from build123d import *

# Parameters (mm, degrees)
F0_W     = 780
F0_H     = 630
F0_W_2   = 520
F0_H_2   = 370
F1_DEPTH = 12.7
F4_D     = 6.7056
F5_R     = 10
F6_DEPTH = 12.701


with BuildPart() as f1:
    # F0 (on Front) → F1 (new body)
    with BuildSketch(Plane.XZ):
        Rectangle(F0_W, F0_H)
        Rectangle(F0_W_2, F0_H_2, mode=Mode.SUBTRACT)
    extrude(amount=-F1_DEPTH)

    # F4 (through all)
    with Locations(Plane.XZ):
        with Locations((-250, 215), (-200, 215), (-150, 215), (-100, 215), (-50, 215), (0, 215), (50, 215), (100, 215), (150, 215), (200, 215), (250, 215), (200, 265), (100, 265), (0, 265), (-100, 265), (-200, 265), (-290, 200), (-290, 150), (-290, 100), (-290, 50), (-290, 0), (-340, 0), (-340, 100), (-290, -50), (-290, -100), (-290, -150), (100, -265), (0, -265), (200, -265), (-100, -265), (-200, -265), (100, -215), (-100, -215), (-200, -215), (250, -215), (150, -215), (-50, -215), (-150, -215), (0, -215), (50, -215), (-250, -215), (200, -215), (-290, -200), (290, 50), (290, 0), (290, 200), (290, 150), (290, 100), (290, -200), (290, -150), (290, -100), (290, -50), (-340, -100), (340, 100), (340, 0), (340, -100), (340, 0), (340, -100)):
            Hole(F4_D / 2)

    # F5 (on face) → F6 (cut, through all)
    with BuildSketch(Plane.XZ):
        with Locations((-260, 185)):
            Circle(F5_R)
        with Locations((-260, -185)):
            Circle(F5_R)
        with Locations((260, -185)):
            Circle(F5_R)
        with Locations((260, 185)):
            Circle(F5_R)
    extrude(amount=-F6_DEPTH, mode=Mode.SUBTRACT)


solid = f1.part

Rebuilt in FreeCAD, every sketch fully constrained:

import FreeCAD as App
import Part
import Sketcher
from FreeCAD import Vector
Q = App.Units.Quantity


def add_polygon(sketch, points):
    """Adds a closed chain of lines whose ends are joined by coincident constraints."""
    first, n = sketch.GeometryCount, len(points)
    for a, b in zip(points, points[1:] + points[:1]):
        sketch.addGeometry(Part.LineSegment(App.Vector(*a, 0), App.Vector(*b, 0)), False)
    for i in range(n):
        sketch.addConstraint(Sketcher.Constraint("Coincident", first + i, 2, first + (i + 1) % n, 1))

doc = App.newDocument("Part")
params = doc.addObject("Spreadsheet::Sheet", "Params")
for row, (alias, value) in enumerate([
    ("sketch1_width", "780 mm"),
    ("sketch1_width2", "520 mm"),
    ("sketch1_height", "630 mm"),
    ("sketch1_height2", "370 mm"),
    ("pad1_length", "12.7 mm"),
    ("hole_diameter", "6.7056 mm"),
    ("sketch3_diameter", "20 mm"),
], start=1):
    params.set(f"A{row}", alias)
    params.set(f"B{row}", "=" + value)
    params.setAlias(f"B{row}", alias)

body = doc.addObject("PartDesign::Body", "Body")

# Sketch on XZ plane
sketch1 = body.newObject("Sketcher::SketchObject", "Sketch")
sketch1.AttachmentSupport = (doc.getObject("XZ_Plane"), [""])
sketch1.MapMode = "FlatFace"
add_polygon(sketch1, [(-390, 315), (-390, -315), (390, -315), (390, 315)])  # lines 0-3
add_polygon(sketch1, [(260, -185), (-260, -185), (-260, 185), (260, 185)])  # lines 4-7
sketch1.addConstraint(Sketcher.Constraint("Vertical", 0))
sketch1.addConstraint(Sketcher.Constraint("Horizontal", 1))
sketch1.addConstraint(Sketcher.Constraint("Vertical", 2))
sketch1.addConstraint(Sketcher.Constraint("Horizontal", 3))
sketch1.addConstraint(Sketcher.Constraint("Horizontal", 4))
sketch1.addConstraint(Sketcher.Constraint("Vertical", 5))
sketch1.addConstraint(Sketcher.Constraint("Horizontal", 6))
sketch1.addConstraint(Sketcher.Constraint("Vertical", 7))
sketch1.addConstraint(Sketcher.Constraint("Symmetric", 0, 2, 2, 2, -1, 1))
sketch1.addConstraint(Sketcher.Constraint("Symmetric", 4, 2, 6, 2, -1, 1))
sketch1.addConstraint(Sketcher.Constraint("DistanceX", 1, 1, 1, 2, Q("780 mm")))
sketch1.addConstraint(Sketcher.Constraint("DistanceX", 4, 2, 4, 1, Q("520 mm")))
sketch1.addConstraint(Sketcher.Constraint("DistanceY", 0, 2, 0, 1, Q("630 mm")))
sketch1.addConstraint(Sketcher.Constraint("DistanceY", 5, 1, 5, 2, Q("370 mm")))
sketch1.setExpression("Constraints[18]", "Params.sketch1_width")
sketch1.setExpression("Constraints[19]", "Params.sketch1_width2")
sketch1.setExpression("Constraints[20]", "Params.sketch1_height")
sketch1.setExpression("Constraints[21]", "Params.sketch1_height2")
pad1 = body.newObject("PartDesign::Pad", "Pad")
pad1.Profile = sketch1
pad1.setExpression("Length", "Params.pad1_length")
pad1.Reversed = True

# Sketch on XZ plane
sketch2 = body.newObject("Sketcher::SketchObject", "Sketch001")
sketch2.AttachmentSupport = (doc.getObject("XZ_Plane"), [""])
sketch2.MapMode = "FlatFace"
sketch2.addGeometry(Part.Circle(Vector(-250, 215, 0), Vector(0, 0, 1), 3.4), False)
sketch2.addGeometry(Part.Circle(Vector(-200, 215, 0), Vector(0, 0, 1), 3.4), False)
sketch2.addGeometry(Part.Circle(Vector(-150, 215, 0), Vector(0, 0, 1), 3.4), False)
sketch2.addGeometry(Part.Circle(Vector(-100, 215, 0), Vector(0, 0, 1), 3.4), False)
sketch2.addGeometry(Part.Circle(Vector(-50, 215, 0), Vector(0, 0, 1), 3.4), False)
sketch2.addGeometry(Part.Circle(Vector(0, 215, 0), Vector(0, 0, 1), 3.4), False)
sketch2.addGeometry(Part.Circle(Vector(50, 215, 0), Vector(0, 0, 1), 3.4), False)
sketch2.addGeometry(Part.Circle(Vector(100, 215, 0), Vector(0, 0, 1), 3.4), False)
sketch2.addGeometry(Part.Circle(Vector(150, 215, 0), Vector(0, 0, 1), 3.4), False)
sketch2.addGeometry(Part.Circle(Vector(200, 215, 0), Vector(0, 0, 1), 3.4), False)
sketch2.addGeometry(Part.Circle(Vector(250, 215, 0), Vector(0, 0, 1), 3.4), False)
sketch2.addGeometry(Part.Circle(Vector(200, 265, 0), Vector(0, 0, 1), 3.4), False)
sketch2.addGeometry(Part.Circle(Vector(100, 265, 0), Vector(0, 0, 1), 3.4), False)
sketch2.addGeometry(Part.Circle(Vector(0, 265, 0), Vector(0, 0, 1), 3.4), False)
sketch2.addGeometry(Part.Circle(Vector(-100, 265, 0), Vector(0, 0, 1), 3.4), False)
sketch2.addGeometry(Part.Circle(Vector(-200, 265, 0), Vector(0, 0, 1), 3.4), False)
sketch2.addGeometry(Part.Circle(Vector(-290, 200, 0), Vector(0, 0, 1), 3.4), False)
sketch2.addGeometry(Part.Circle(Vector(-290, 150, 0), Vector(0, 0, 1), 3.4), False)
sketch2.addGeometry(Part.Circle(Vector(-290, 100, 0), Vector(0, 0, 1), 3.4), False)
sketch2.addGeometry(Part.Circle(Vector(-290, 50, 0), Vector(0, 0, 1), 3.4), False)
sketch2.addGeometry(Part.Circle(Vector(-290, 0, 0), Vector(0, 0, 1), 3.4), False)
sketch2.addGeometry(Part.Circle(Vector(-340, 0, 0), Vector(0, 0, 1), 3.4), False)
sketch2.addGeometry(Part.Circle(Vector(-340, 100, 0), Vector(0, 0, 1), 3.4), False)
sketch2.addGeometry(Part.Circle(Vector(-290, -50, 0), Vector(0, 0, 1), 3.4), False)
sketch2.addGeometry(Part.Circle(Vector(-290, -100, 0), Vector(0, 0, 1), 3.4), False)
sketch2.addGeometry(Part.Circle(Vector(-290, -150, 0), Vector(0, 0, 1), 3.4), False)
sketch2.addGeometry(Part.Circle(Vector(100, -265, 0), Vector(0, 0, 1), 3.4), False)
sketch2.addGeometry(Part.Circle(Vector(0, -265, 0), Vector(0, 0, 1), 3.4), False)
sketch2.addGeometry(Part.Circle(Vector(200, -265, 0), Vector(0, 0, 1), 3.4), False)
sketch2.addGeometry(Part.Circle(Vector(-100, -265, 0), Vector(0, 0, 1), 3.4), False)
sketch2.addGeometry(Part.Circle(Vector(-200, -265, 0), Vector(0, 0, 1), 3.4), False)
sketch2.addGeometry(Part.Circle(Vector(100, -215, 0), Vector(0, 0, 1), 3.4), False)
sketch2.addGeometry(Part.Circle(Vector(-100, -215, 0), Vector(0, 0, 1), 3.4), False)
sketch2.addGeometry(Part.Circle(Vector(-200, -215, 0), Vector(0, 0, 1), 3.4), False)
sketch2.addGeometry(Part.Circle(Vector(250, -215, 0), Vector(0, 0, 1), 3.4), False)
sketch2.addGeometry(Part.Circle(Vector(150, -215, 0), Vector(0, 0, 1), 3.4), False)
sketch2.addGeometry(Part.Circle(Vector(-50, -215, 0), Vector(0, 0, 1), 3.4), False)
sketch2.addGeometry(Part.Circle(Vector(-150, -215, 0), Vector(0, 0, 1), 3.4), False)
sketch2.addGeometry(Part.Circle(Vector(0, -215, 0), Vector(0, 0, 1), 3.4), False)
sketch2.addGeometry(Part.Circle(Vector(50, -215, 0), Vector(0, 0, 1), 3.4), False)
sketch2.addGeometry(Part.Circle(Vector(-250, -215, 0), Vector(0, 0, 1), 3.4), False)
sketch2.addGeometry(Part.Circle(Vector(200, -215, 0), Vector(0, 0, 1), 3.4), False)
sketch2.addGeometry(Part.Circle(Vector(-290, -200, 0), Vector(0, 0, 1), 3.4), False)
sketch2.addGeometry(Part.Circle(Vector(290, 50, 0), Vector(0, 0, 1), 3.4), False)
sketch2.addGeometry(Part.Circle(Vector(290, 0, 0), Vector(0, 0, 1), 3.4), False)
sketch2.addGeometry(Part.Circle(Vector(290, 200, 0), Vector(0, 0, 1), 3.4), False)
sketch2.addGeometry(Part.Circle(Vector(290, 150, 0), Vector(0, 0, 1), 3.4), False)
sketch2.addGeometry(Part.Circle(Vector(290, 100, 0), Vector(0, 0, 1), 3.4), False)
sketch2.addGeometry(Part.Circle(Vector(290, -200, 0), Vector(0, 0, 1), 3.4), False)
sketch2.addGeometry(Part.Circle(Vector(290, -150, 0), Vector(0, 0, 1), 3.4), False)
sketch2.addGeometry(Part.Circle(Vector(290, -100, 0), Vector(0, 0, 1), 3.4), False)
sketch2.addGeometry(Part.Circle(Vector(290, -50, 0), Vector(0, 0, 1), 3.4), False)
sketch2.addGeometry(Part.Circle(Vector(-340, -100, 0), Vector(0, 0, 1), 3.4), False)
sketch2.addGeometry(Part.Circle(Vector(340, 100, 0), Vector(0, 0, 1), 3.4), False)
sketch2.addGeometry(Part.Circle(Vector(340, 0, 0), Vector(0, 0, 1), 3.4), False)
sketch2.addGeometry(Part.Circle(Vector(340, -100, 0), Vector(0, 0, 1), 3.4), False)
sketch2.addGeometry(Part.Circle(Vector(340, 0, 0), Vector(0, 0, 1), 3.4), False)
sketch2.addGeometry(Part.Circle(Vector(340, -100, 0), Vector(0, 0, 1), 3.4), False)
sketch2.addConstraint(Sketcher.Constraint("Coincident", 56, 3, 54, 3))
sketch2.addConstraint(Sketcher.Constraint("Coincident", 57, 3, 55, 3))
sketch2.addConstraint(Sketcher.Constraint("Equal", 0, 1))
sketch2.addConstraint(Sketcher.Constraint("Equal", 1, 2))
sketch2.addConstraint(Sketcher.Constraint("Equal", 2, 3))
sketch2.addConstraint(Sketcher.Constraint("Equal", 3, 4))
sketch2.addConstraint(Sketcher.Constraint("Equal", 4, 5))
sketch2.addConstraint(Sketcher.Constraint("Equal", 5, 6))
sketch2.addConstraint(Sketcher.Constraint("Equal", 6, 7))
sketch2.addConstraint(Sketcher.Constraint("Equal", 7, 8))
sketch2.addConstraint(Sketcher.Constraint("Equal", 8, 9))
sketch2.addConstraint(Sketcher.Constraint("Equal", 9, 10))
sketch2.addConstraint(Sketcher.Constraint("Equal", 10, 11))
sketch2.addConstraint(Sketcher.Constraint("Equal", 11, 12))
sketch2.addConstraint(Sketcher.Constraint("Equal", 12, 13))
sketch2.addConstraint(Sketcher.Constraint("Equal", 13, 14))
sketch2.addConstraint(Sketcher.Constraint("Equal", 14, 15))
sketch2.addConstraint(Sketcher.Constraint("Equal", 15, 16))
sketch2.addConstraint(Sketcher.Constraint("Equal", 16, 17))
sketch2.addConstraint(Sketcher.Constraint("Equal", 17, 18))
sketch2.addConstraint(Sketcher.Constraint("Equal", 18, 19))
sketch2.addConstraint(Sketcher.Constraint("Equal", 19, 20))
sketch2.addConstraint(Sketcher.Constraint("Equal", 20, 21))
sketch2.addConstraint(Sketcher.Constraint("Equal", 21, 22))
sketch2.addConstraint(Sketcher.Constraint("Equal", 22, 23))
sketch2.addConstraint(Sketcher.Constraint("Equal", 23, 24))
sketch2.addConstraint(Sketcher.Constraint("Equal", 24, 25))
sketch2.addConstraint(Sketcher.Constraint("Equal", 25, 26))
sketch2.addConstraint(Sketcher.Constraint("Equal", 26, 27))
sketch2.addConstraint(Sketcher.Constraint("Equal", 27, 28))
sketch2.addConstraint(Sketcher.Constraint("Equal", 28, 29))
sketch2.addConstraint(Sketcher.Constraint("Equal", 29, 30))
sketch2.addConstraint(Sketcher.Constraint("Equal", 30, 31))
sketch2.addConstraint(Sketcher.Constraint("Equal", 31, 32))
sketch2.addConstraint(Sketcher.Constraint("Equal", 32, 33))
sketch2.addConstraint(Sketcher.Constraint("Equal", 33, 34))
sketch2.addConstraint(Sketcher.Constraint("Equal", 34, 35))
sketch2.addConstraint(Sketcher.Constraint("Equal", 35, 36))
sketch2.addConstraint(Sketcher.Constraint("Equal", 36, 37))
sketch2.addConstraint(Sketcher.Constraint("Equal", 37, 38))
sketch2.addConstraint(Sketcher.Constraint("Equal", 38, 39))
sketch2.addConstraint(Sketcher.Constraint("Equal", 39, 40))
sketch2.addConstraint(Sketcher.Constraint("Equal", 40, 41))
sketch2.addConstraint(Sketcher.Constraint("Equal", 41, 42))
sketch2.addConstraint(Sketcher.Constraint("Equal", 42, 43))
sketch2.addConstraint(Sketcher.Constraint("Equal", 43, 44))
sketch2.addConstraint(Sketcher.Constraint("Equal", 44, 45))
sketch2.addConstraint(Sketcher.Constraint("Equal", 45, 46))
sketch2.addConstraint(Sketcher.Constraint("Equal", 46, 47))
sketch2.addConstraint(Sketcher.Constraint("Equal", 47, 48))
sketch2.addConstraint(Sketcher.Constraint("Equal", 48, 49))
sketch2.addConstraint(Sketcher.Constraint("Equal", 49, 50))
sketch2.addConstraint(Sketcher.Constraint("Equal", 50, 51))
sketch2.addConstraint(Sketcher.Constraint("Equal", 51, 52))
sketch2.addConstraint(Sketcher.Constraint("Equal", 52, 53))
sketch2.addConstraint(Sketcher.Constraint("Equal", 53, 54))
sketch2.addConstraint(Sketcher.Constraint("Equal", 54, 55))
sketch2.addConstraint(Sketcher.Constraint("Equal", 55, 56))
sketch2.addConstraint(Sketcher.Constraint("Equal", 56, 57))
sketch2.addConstraint(Sketcher.Constraint("Symmetric", 14, 3, 26, 3, -1, 1))
sketch2.addConstraint(Sketcher.Constraint("Symmetric", 13, 3, 27, 3, -1, 1))
sketch2.addConstraint(Sketcher.Constraint("Symmetric", 15, 3, 28, 3, -1, 1))
sketch2.addConstraint(Sketcher.Constraint("Symmetric", 12, 3, 29, 3, -1, 1))
sketch2.addConstraint(Sketcher.Constraint("Symmetric", 11, 3, 30, 3, -1, 1))
sketch2.addConstraint(Sketcher.Constraint("Symmetric", 3, 3, 31, 3, -1, 1))
sketch2.addConstraint(Sketcher.Constraint("Symmetric", 7, 3, 32, 3, -1, 1))
sketch2.addConstraint(Sketcher.Constraint("Symmetric", 9, 3, 33, 3, -1, 1))
sketch2.addConstraint(Sketcher.Constraint("Symmetric", 0, 3, 34, 3, -1, 1))
sketch2.addConstraint(Sketcher.Constraint("Symmetric", 2, 3, 35, 3, -1, 1))
sketch2.addConstraint(Sketcher.Constraint("Symmetric", 6, 3, 36, 3, -1, 1))
sketch2.addConstraint(Sketcher.Constraint("Symmetric", 8, 3, 37, 3, -1, 1))
sketch2.addConstraint(Sketcher.Constraint("Symmetric", 5, 3, 38, 3, -1, 1))
sketch2.addConstraint(Sketcher.Constraint("Symmetric", 4, 3, 39, 3, -1, 1))
sketch2.addConstraint(Sketcher.Constraint("Symmetric", 10, 3, 40, 3, -1, 1))
sketch2.addConstraint(Sketcher.Constraint("Symmetric", 1, 3, 41, 3, -1, 1))
sketch2.addConstraint(Sketcher.Constraint("Symmetric", 23, 3, 43, 3, -1, 1))
sketch2.addConstraint(Sketcher.Constraint("Symmetric", 20, 3, 44, 3, -1, 1))
sketch2.addConstraint(Sketcher.Constraint("Symmetric", 42, 3, 45, 3, -1, 1))
sketch2.addConstraint(Sketcher.Constraint("Symmetric", 25, 3, 46, 3, -1, 1))
sketch2.addConstraint(Sketcher.Constraint("Symmetric", 24, 3, 47, 3, -1, 1))
sketch2.addConstraint(Sketcher.Constraint("Symmetric", 16, 3, 48, 3, -1, 1))
sketch2.addConstraint(Sketcher.Constraint("Symmetric", 17, 3, 49, 3, -1, 1))
sketch2.addConstraint(Sketcher.Constraint("Symmetric", 18, 3, 50, 3, -1, 1))
sketch2.addConstraint(Sketcher.Constraint("Symmetric", 19, 3, 51, 3, -1, 1))
sketch2.addConstraint(Sketcher.Constraint("Symmetric", 52, 3, 53, 3, -1, 1))
sketch2.addConstraint(Sketcher.Constraint("Symmetric", 21, 3, 54, 3, -1, 1))
sketch2.addConstraint(Sketcher.Constraint("Symmetric", 22, 3, 55, 3, -1, 1))
sketch2.addConstraint(Sketcher.Constraint("Symmetric", 4, 3, 6, 3, -2))
sketch2.addConstraint(Sketcher.Constraint("Symmetric", 3, 3, 7, 3, -2))
sketch2.addConstraint(Sketcher.Constraint("Symmetric", 2, 3, 8, 3, -2))
sketch2.addConstraint(Sketcher.Constraint("Symmetric", 1, 3, 9, 3, -2))
sketch2.addConstraint(Sketcher.Constraint("Symmetric", 0, 3, 10, 3, -2))
sketch2.addConstraint(Sketcher.Constraint("Symmetric", 12, 3, 14, 3, -2))
sketch2.addConstraint(Sketcher.Constraint("Symmetric", 11, 3, 15, 3, -2))
sketch2.addConstraint(Sketcher.Constraint("Symmetric", 19, 3, 43, 3, -2))
sketch2.addConstraint(Sketcher.Constraint("Symmetric", 16, 3, 45, 3, -2))
sketch2.addConstraint(Sketcher.Constraint("Symmetric", 17, 3, 46, 3, -2))
sketch2.addConstraint(Sketcher.Constraint("Symmetric", 18, 3, 47, 3, -2))
sketch2.addConstraint(Sketcher.Constraint("Symmetric", 22, 3, 53, 3, -2))
sketch2.addConstraint(Sketcher.Constraint("PointOnObject", 5, 3, -2))
sketch2.addConstraint(Sketcher.Constraint("PointOnObject", 13, 3, -2))
sketch2.addConstraint(Sketcher.Constraint("PointOnObject", 20, 3, -1))
sketch2.addConstraint(Sketcher.Constraint("PointOnObject", 21, 3, -1))
sketch2.addConstraint(Sketcher.Constraint("Horizontal", 0, 3, 1, 3))
sketch2.addConstraint(Sketcher.Constraint("Horizontal", 1, 3, 2, 3))
sketch2.addConstraint(Sketcher.Constraint("Horizontal", 2, 3, 3, 3))
sketch2.addConstraint(Sketcher.Constraint("Horizontal", 3, 3, 4, 3))
sketch2.addConstraint(Sketcher.Constraint("Horizontal", 4, 3, 5, 3))
sketch2.addConstraint(Sketcher.Constraint("Horizontal", 11, 3, 12, 3))
sketch2.addConstraint(Sketcher.Constraint("Horizontal", 12, 3, 13, 3))
sketch2.addConstraint(Sketcher.Constraint("Horizontal", 18, 3, 22, 3))
sketch2.addConstraint(Sketcher.Constraint("Vertical", 9, 3, 11, 3))
sketch2.addConstraint(Sketcher.Constraint("Vertical", 7, 3, 12, 3))
sketch2.addConstraint(Sketcher.Constraint("Vertical", 16, 3, 17, 3))
sketch2.addConstraint(Sketcher.Constraint("Vertical", 17, 3, 18, 3))
sketch2.addConstraint(Sketcher.Constraint("Vertical", 18, 3, 19, 3))
sketch2.addConstraint(Sketcher.Constraint("Vertical", 19, 3, 20, 3))
sketch2.addConstraint(Sketcher.Constraint("Vertical", 21, 3, 22, 3))
sketch2.addConstraint(Sketcher.Constraint("DistanceX", 0, 3, -1, 1, Q("250 mm")))
sketch2.addConstraint(Sketcher.Constraint("DistanceY", -1, 1, 0, 3, Q("215 mm")))
sketch2.addConstraint(Sketcher.Constraint("DistanceX", 1, 3, -1, 1, Q("200 mm")))
sketch2.addConstraint(Sketcher.Constraint("DistanceX", 2, 3, -1, 1, Q("150 mm")))
sketch2.addConstraint(Sketcher.Constraint("DistanceX", 3, 3, -1, 1, Q("100 mm")))
sketch2.addConstraint(Sketcher.Constraint("DistanceX", 4, 3, -1, 1, Q("50 mm")))
sketch2.addConstraint(Sketcher.Constraint("DistanceY", -1, 1, 11, 3, Q("265 mm")))
sketch2.addConstraint(Sketcher.Constraint("DistanceX", 16, 3, -1, 1, Q("290 mm")))
sketch2.addConstraint(Sketcher.Constraint("DistanceY", -1, 1, 16, 3, Q("200 mm")))
sketch2.addConstraint(Sketcher.Constraint("DistanceY", -1, 1, 17, 3, Q("150 mm")))
sketch2.addConstraint(Sketcher.Constraint("DistanceY", -1, 1, 18, 3, Q("100 mm")))
sketch2.addConstraint(Sketcher.Constraint("DistanceY", -1, 1, 19, 3, Q("50 mm")))
sketch2.addConstraint(Sketcher.Constraint("DistanceX", 21, 3, -1, 1, Q("340 mm")))
sketch2.addConstraint(Sketcher.Constraint("Diameter", 0, Q("6.7056 mm")))
doc.recompute()
hole = body.newObject("PartDesign::Hole", "Hole")
hole.Profile = sketch2
hole.ThreadType = "None"
hole.setExpression("Diameter", "Params.hole_diameter")
hole.DepthType = "ThroughAll"

# Sketch on XZ plane
sketch3 = body.newObject("Sketcher::SketchObject", "Sketch002")
sketch3.AttachmentSupport = (doc.getObject("XZ_Plane"), [""])
sketch3.MapMode = "FlatFace"
sketch3.addGeometry(Part.Circle(Vector(-260, 185, 0), Vector(0, 0, 1), 10), False)
sketch3.addGeometry(Part.Circle(Vector(-260, -185, 0), Vector(0, 0, 1), 10), False)
sketch3.addGeometry(Part.Circle(Vector(260, -185, 0), Vector(0, 0, 1), 10), False)
sketch3.addGeometry(Part.Circle(Vector(260, 185, 0), Vector(0, 0, 1), 10), False)
sketch3.addConstraint(Sketcher.Constraint("Equal", 0, 1))
sketch3.addConstraint(Sketcher.Constraint("Equal", 1, 2))
sketch3.addConstraint(Sketcher.Constraint("Equal", 2, 3))
sketch3.addConstraint(Sketcher.Constraint("Symmetric", 0, 3, 2, 3, -1, 1))
sketch3.addConstraint(Sketcher.Constraint("Symmetric", 1, 3, 3, 3, -1, 1))
sketch3.addConstraint(Sketcher.Constraint("Symmetric", 1, 3, 2, 3, -2))
sketch3.addConstraint(Sketcher.Constraint("Diameter", 0, Q("20 mm")))
sketch3.addConstraint(Sketcher.Constraint("DistanceX", 0, 3, -1, 1, Q("260 mm")))
sketch3.addConstraint(Sketcher.Constraint("DistanceY", -1, 1, 0, 3, Q("185 mm")))
sketch3.setExpression("Constraints[6]", "Params.sketch3_diameter")
pocket1 = body.newObject("PartDesign::Pocket", "Pocket")
pocket1.Profile = sketch3
pocket1.Type = "ThroughAll"

doc.recompute()
